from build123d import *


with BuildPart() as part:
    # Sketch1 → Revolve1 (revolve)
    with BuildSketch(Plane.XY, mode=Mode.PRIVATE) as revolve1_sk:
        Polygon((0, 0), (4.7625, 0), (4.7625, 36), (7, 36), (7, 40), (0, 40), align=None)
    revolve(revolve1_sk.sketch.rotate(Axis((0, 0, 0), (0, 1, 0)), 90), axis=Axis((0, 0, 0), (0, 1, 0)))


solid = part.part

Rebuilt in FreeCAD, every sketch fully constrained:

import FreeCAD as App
import Part
import Sketcher

V = App.Vector
Q = App.Units.Quantity

doc = App.newDocument("Part")
body = doc.addObject("PartDesign::Body", "Body")

# Sketch on XY plane
sketch1 = body.newObject("Sketcher::SketchObject", "Sketch")
sketch1.AttachmentSupport = (doc.getObject("XY_Plane"), [""])
sketch1.MapMode = "FlatFace"
sketch1.addGeometry([
    Part.LineSegment(V(0, 0, 0), V(4.7625, 0, 0)),  # 0
    Part.LineSegment(V(4.7625, 0, 0), V(4.7625, 36, 0)),  # 1
    Part.LineSegment(V(4.7625, 36, 0), V(7, 36, 0)),  # 2
    Part.LineSegment(V(7, 36, 0), V(7, 40, 0)),  # 3
    Part.LineSegment(V(7, 40, 0), V(0, 40, 0)),  # 4
    Part.LineSegment(V(0, 40, 0), V(0, 0, 0)),  # 5
], False)
sketch1.addConstraint([
    Sketcher.Constraint("Coincident", 0, 2, 1, 1),
    Sketcher.Constraint("Coincident", 1, 2, 2, 1),
    Sketcher.Constraint("Coincident", 2, 2, 3, 1),
    Sketcher.Constraint("Coincident", 3, 2, 4, 1),
    Sketcher.Constraint("Coincident", 4, 2, 5, 1),
    Sketcher.Constraint("Coincident", 5, 2, 0, 1),
    Sketcher.Constraint("Horizontal", 0),
    Sketcher.Constraint("Vertical", 1),
    Sketcher.Constraint("Horizontal", 2),
    Sketcher.Constraint("Vertical", 3),
    Sketcher.Constraint("Horizontal", 4),
    Sketcher.Constraint("Vertical", 5),
    Sketcher.Constraint("Coincident", 5, 2, -1, 1),
    Sketcher.Constraint("DistanceX", 4, 2, 4, 1, Q("7 mm")),
    Sketcher.Constraint("DistanceY", 1, 1, 1, 2, Q("36 mm")),
    Sketcher.Constraint("DistanceY", 3, 1, 3, 2, Q("4 mm")),
    Sketcher.Constraint("DistanceX", 0, 1, 0, 2, Q("4.7625 mm")),
])
revolution = body.newObject("PartDesign::Revolution", "Revolution")
revolution.Profile = sketch1
revolution.ReferenceAxis = (sketch1, ["V_Axis"])
revolution.Angle = 360

doc.recompute()
